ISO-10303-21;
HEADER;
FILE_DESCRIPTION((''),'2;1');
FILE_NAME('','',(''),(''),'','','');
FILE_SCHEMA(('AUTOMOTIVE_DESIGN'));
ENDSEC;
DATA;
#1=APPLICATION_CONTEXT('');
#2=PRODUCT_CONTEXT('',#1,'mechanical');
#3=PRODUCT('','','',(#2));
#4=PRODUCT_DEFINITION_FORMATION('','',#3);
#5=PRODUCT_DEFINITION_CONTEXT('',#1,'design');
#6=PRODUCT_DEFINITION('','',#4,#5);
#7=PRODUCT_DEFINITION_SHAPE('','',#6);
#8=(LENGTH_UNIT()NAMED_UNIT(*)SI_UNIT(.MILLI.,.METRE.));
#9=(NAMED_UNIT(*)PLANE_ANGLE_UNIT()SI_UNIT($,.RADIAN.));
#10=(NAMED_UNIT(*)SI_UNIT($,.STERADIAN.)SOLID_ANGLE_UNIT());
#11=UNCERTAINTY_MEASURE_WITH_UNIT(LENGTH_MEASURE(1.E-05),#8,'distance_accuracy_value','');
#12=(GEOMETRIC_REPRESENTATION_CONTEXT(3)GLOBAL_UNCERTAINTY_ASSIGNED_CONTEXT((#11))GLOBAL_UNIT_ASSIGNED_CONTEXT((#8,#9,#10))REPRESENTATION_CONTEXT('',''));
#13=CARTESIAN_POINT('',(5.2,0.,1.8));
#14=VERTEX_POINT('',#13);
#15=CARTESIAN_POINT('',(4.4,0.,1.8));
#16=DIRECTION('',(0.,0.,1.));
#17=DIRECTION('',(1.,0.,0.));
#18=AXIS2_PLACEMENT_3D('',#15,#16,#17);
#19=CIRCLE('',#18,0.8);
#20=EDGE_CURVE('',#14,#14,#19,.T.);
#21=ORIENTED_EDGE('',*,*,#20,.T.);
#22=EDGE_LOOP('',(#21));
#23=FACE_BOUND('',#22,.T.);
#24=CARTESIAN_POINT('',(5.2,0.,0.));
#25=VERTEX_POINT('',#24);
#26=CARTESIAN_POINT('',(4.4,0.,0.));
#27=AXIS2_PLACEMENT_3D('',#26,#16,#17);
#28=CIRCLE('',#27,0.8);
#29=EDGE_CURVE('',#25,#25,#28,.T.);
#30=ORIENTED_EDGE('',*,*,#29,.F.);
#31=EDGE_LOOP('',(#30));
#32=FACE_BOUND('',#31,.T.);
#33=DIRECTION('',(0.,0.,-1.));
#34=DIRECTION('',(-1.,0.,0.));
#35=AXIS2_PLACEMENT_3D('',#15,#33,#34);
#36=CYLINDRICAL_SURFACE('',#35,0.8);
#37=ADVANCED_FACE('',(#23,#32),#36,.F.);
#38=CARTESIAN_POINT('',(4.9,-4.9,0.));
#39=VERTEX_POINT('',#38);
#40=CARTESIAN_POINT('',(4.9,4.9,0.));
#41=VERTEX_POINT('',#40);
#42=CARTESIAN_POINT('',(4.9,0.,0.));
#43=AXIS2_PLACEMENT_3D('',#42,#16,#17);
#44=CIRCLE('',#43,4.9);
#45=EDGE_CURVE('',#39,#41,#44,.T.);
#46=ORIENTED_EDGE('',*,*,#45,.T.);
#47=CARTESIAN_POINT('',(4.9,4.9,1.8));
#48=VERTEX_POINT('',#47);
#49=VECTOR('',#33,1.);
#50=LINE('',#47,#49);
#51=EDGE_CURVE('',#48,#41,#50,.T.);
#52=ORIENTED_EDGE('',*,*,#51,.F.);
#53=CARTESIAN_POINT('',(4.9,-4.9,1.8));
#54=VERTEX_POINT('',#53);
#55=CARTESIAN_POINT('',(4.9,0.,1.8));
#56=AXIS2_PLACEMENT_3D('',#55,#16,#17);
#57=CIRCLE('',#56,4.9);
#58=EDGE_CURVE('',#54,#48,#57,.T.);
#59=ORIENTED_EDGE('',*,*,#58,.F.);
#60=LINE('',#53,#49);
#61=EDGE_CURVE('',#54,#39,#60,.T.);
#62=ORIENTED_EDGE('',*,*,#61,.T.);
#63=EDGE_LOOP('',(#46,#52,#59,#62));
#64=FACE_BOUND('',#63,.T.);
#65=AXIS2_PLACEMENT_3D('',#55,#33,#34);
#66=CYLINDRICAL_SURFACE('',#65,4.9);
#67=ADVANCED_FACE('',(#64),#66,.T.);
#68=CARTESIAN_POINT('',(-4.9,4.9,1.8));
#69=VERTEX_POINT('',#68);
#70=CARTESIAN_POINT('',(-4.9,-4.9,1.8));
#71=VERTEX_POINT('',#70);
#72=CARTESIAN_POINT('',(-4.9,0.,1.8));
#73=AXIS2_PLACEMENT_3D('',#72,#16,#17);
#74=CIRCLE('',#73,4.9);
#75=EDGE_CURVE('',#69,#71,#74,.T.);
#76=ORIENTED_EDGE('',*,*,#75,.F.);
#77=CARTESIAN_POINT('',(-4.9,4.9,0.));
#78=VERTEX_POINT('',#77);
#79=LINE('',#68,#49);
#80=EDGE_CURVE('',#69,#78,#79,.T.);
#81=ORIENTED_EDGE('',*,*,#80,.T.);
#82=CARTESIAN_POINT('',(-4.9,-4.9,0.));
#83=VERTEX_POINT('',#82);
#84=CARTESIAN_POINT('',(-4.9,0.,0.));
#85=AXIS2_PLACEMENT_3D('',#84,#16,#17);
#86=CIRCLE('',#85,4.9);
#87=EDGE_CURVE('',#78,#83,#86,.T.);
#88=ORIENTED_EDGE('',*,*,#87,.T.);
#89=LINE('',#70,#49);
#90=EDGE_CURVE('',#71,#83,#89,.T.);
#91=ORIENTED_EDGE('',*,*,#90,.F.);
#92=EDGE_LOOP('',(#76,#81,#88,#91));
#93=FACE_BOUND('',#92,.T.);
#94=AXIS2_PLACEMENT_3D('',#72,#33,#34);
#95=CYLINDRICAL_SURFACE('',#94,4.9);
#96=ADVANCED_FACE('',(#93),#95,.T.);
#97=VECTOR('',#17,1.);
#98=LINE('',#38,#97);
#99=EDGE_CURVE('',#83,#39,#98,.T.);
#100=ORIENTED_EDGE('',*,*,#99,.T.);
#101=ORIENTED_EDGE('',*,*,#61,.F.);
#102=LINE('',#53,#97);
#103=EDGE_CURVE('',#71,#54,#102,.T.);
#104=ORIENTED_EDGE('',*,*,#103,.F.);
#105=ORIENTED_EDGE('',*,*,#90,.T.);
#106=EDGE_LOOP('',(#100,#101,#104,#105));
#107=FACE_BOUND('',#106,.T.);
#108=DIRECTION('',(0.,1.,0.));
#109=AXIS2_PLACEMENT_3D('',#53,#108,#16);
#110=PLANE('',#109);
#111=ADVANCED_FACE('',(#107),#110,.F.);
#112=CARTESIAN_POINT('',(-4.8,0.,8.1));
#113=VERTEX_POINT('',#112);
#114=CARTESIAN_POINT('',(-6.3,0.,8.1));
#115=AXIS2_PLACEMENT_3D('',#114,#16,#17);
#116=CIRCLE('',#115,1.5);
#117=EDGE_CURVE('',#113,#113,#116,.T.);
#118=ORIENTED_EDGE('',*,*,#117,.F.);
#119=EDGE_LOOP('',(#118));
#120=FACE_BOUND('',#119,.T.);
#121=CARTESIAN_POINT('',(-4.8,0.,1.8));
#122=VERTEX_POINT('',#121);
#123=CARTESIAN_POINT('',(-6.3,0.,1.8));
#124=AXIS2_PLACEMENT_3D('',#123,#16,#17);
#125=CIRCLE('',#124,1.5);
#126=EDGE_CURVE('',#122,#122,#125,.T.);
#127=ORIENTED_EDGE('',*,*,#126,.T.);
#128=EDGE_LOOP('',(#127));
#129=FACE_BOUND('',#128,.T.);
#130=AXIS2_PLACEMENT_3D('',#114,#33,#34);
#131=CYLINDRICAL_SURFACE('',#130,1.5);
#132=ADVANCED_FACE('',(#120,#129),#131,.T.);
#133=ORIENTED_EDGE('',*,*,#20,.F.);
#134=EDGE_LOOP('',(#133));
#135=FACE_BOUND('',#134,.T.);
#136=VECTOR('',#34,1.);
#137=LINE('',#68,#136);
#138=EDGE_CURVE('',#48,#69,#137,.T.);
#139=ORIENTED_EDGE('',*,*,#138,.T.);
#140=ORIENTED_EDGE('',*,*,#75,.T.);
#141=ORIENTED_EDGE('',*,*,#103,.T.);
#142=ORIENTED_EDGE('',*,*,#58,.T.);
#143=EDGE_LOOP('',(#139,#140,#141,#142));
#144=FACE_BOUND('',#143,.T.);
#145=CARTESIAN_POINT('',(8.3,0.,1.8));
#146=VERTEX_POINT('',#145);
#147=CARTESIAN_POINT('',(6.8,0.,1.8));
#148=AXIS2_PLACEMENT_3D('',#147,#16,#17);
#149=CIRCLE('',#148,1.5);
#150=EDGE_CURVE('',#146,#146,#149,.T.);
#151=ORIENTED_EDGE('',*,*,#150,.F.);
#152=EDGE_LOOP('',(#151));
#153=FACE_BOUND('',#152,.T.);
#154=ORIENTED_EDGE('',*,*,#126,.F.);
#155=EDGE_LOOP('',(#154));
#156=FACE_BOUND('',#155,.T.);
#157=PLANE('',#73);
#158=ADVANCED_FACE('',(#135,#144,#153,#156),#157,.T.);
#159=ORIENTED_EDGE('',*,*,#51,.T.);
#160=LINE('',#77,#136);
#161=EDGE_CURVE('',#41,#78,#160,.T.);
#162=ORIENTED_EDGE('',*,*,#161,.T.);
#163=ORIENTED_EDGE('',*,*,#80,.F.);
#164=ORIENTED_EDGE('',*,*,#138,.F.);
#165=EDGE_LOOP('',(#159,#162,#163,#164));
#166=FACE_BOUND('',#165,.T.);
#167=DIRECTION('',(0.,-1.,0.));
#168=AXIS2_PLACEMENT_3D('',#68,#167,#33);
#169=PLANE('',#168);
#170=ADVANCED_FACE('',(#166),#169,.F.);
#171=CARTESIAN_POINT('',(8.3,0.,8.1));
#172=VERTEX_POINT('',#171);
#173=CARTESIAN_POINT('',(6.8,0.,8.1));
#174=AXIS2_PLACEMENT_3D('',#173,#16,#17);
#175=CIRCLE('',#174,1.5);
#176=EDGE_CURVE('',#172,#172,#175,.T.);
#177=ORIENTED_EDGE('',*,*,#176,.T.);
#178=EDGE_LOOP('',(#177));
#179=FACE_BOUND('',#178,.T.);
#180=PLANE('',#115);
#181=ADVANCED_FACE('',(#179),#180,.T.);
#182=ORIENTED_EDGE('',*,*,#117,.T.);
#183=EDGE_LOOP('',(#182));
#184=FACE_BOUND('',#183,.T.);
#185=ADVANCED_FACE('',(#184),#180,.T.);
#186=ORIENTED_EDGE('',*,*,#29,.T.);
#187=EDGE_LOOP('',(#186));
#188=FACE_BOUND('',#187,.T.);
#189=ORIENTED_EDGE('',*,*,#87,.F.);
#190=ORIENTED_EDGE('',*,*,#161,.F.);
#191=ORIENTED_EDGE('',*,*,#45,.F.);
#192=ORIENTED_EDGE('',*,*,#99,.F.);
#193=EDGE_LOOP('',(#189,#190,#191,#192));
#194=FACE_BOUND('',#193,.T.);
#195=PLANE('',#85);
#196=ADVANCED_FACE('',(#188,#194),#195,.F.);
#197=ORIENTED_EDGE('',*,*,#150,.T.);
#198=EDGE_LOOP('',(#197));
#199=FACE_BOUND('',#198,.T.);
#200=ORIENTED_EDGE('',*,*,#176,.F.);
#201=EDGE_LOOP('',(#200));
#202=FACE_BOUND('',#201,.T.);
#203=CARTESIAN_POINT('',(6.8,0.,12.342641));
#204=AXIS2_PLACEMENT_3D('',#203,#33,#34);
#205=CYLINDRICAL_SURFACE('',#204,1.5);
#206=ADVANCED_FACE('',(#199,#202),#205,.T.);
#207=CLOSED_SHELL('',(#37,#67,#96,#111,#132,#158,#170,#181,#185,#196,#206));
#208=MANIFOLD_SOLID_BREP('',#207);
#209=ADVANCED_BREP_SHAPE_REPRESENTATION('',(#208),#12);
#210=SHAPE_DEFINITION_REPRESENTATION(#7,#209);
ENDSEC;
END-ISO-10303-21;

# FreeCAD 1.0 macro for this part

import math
import FreeCAD as App
import Part
import Sketcher
from FreeCAD import Vector
Q = App.Units.Quantity

doc = App.newDocument("Part")
params = doc.addObject("Spreadsheet::Sheet", "Params")
for row, (alias, value) in enumerate([
    ("sketch1_diameter", "1.6 mm"),
    ("sketch1_radius", "4.9 mm"),
    ("sketch1_width", "9.8 mm"),
    ("pad1_length", "1.8 mm"),
    ("sketch2_diameter", "3 mm"),
    ("pad2_length", "6.3 mm"),
    ("sketch3_diameter", "3 mm"),
    ("pad3_length", "6.3 mm"),
], start=1):
    params.set(f"A{row}", alias)
    params.set(f"B{row}", "=" + value)
    params.setAlias(f"B{row}", alias)

body = doc.addObject("PartDesign::Body", "Body")

sketch1 = doc.addObject("Sketcher::SketchObject", "Sketch")
body.addObject(sketch1)
sketch1.AttachmentSupport = (doc.XY_Plane, [""])
sketch1.MapMode = "FlatFace"
sketch1.addGeometry([
    Part.LineSegment(Vector(4.9, 4.9, 0), Vector(-4.9, 4.9, 0)),
    Part.ArcOfCircle(Part.Circle(Vector(-4.9, 0, 0), Vector(0, 0, 1), 4.9), math.radians(90), math.radians(270)),
    Part.LineSegment(Vector(-4.9, -4.9, 0), Vector(4.9, -4.9, 0)),
    Part.ArcOfCircle(Part.Circle(Vector(4.9, 0, 0), Vector(0, 0, 1), 4.9), math.radians(-90), math.radians(90)),
    Part.Circle(Vector(4.4, 0, 0), Vector(0, 0, 1), 0.8),
], False)
sketch1.addConstraint([
    Sketcher.Constraint("Tangent", 0, 2, 1, 1),
    Sketcher.Constraint("Tangent", 1, 2, 2, 1),
    Sketcher.Constraint("Tangent", 2, 2, 3, 1),
    Sketcher.Constraint("Tangent", 3, 2, 0, 1),
    Sketcher.Constraint("Horizontal", 0),
    Sketcher.Constraint("Horizontal", 2),
    Sketcher.Constraint("Symmetric", 1, 3, 3, 3, -1, 1),
    Sketcher.Constraint("PointOnObject", 4, 3, -1),
    Sketcher.Constraint("Diameter", 4, Q("1.6 mm")),
    Sketcher.Constraint("Radius", 1, Q("4.9 mm")),
    Sketcher.Constraint("DistanceX", 0, 2, 0, 1, Q("9.8 mm")),
    Sketcher.Constraint("DistanceX", -1, 1, 4, 3, Q("4.4 mm")),
])
sketch1.setExpression("Constraints[8]", "Params.sketch1_diameter")
sketch1.setExpression("Constraints[9]", "Params.sketch1_radius")
sketch1.setExpression("Constraints[10]", "Params.sketch1_width")
pad1 = doc.addObject("PartDesign::Pad", "Pad")
body.addObject(pad1)
pad1.Profile = sketch1
pad1.setExpression("Length", "Params.pad1_length")

sketch2 = doc.addObject("Sketcher::SketchObject", "Sketch001")
body.addObject(sketch2)
sketch2.AttachmentSupport = (doc.XY_Plane, [""])
sketch2.MapMode = "FlatFace"
sketch2.AttachmentOffset = App.Placement(Vector(0, 0, 1.8), App.Rotation())
sketch2.addGeometry(Part.Circle(Vector(-6.3, 0, 0), Vector(0, 0, 1), 1.5), False)
sketch2.addConstraint([
    Sketcher.Constraint("PointOnObject", 0, 3, -1),
    Sketcher.Constraint("Diameter", 0, Q("3 mm")),
    Sketcher.Constraint("DistanceX", 0, 3, -1, 1, Q("6.3 mm")),
])
sketch2.setExpression("Constraints[1]", "Params.sketch2_diameter")
pad2 = doc.addObject("PartDesign::Pad", "Pad001")
body.addObject(pad2)
pad2.Profile = sketch2
pad2.setExpression("Length", "Params.pad2_length")

sketch3 = doc.addObject("Sketcher::SketchObject", "Sketch002")
body.addObject(sketch3)
sketch3.AttachmentSupport = (doc.XY_Plane, [""])
sketch3.MapMode = "FlatFace"
sketch3.AttachmentOffset = App.Placement(Vector(0, 0, 1.8), App.Rotation())
sketch3.addGeometry(Part.Circle(Vector(6.8, 0, 0), Vector(0, 0, 1), 1.5), False)
sketch3.addConstraint([
    Sketcher.Constraint("PointOnObject", 0, 3, -1),
    Sketcher.Constraint("Diameter", 0, Q("3 mm")),
    Sketcher.Constraint("DistanceX", -1, 1, 0, 3, Q("6.8 mm")),
])
sketch3.setExpression("Constraints[1]", "Params.sketch3_diameter")
pad3 = doc.addObject("PartDesign::Pad", "Pad002")
body.addObject(pad3)
pad3.Profile = sketch3
pad3.setExpression("Length", "Params.pad3_length")

doc.recompute()
